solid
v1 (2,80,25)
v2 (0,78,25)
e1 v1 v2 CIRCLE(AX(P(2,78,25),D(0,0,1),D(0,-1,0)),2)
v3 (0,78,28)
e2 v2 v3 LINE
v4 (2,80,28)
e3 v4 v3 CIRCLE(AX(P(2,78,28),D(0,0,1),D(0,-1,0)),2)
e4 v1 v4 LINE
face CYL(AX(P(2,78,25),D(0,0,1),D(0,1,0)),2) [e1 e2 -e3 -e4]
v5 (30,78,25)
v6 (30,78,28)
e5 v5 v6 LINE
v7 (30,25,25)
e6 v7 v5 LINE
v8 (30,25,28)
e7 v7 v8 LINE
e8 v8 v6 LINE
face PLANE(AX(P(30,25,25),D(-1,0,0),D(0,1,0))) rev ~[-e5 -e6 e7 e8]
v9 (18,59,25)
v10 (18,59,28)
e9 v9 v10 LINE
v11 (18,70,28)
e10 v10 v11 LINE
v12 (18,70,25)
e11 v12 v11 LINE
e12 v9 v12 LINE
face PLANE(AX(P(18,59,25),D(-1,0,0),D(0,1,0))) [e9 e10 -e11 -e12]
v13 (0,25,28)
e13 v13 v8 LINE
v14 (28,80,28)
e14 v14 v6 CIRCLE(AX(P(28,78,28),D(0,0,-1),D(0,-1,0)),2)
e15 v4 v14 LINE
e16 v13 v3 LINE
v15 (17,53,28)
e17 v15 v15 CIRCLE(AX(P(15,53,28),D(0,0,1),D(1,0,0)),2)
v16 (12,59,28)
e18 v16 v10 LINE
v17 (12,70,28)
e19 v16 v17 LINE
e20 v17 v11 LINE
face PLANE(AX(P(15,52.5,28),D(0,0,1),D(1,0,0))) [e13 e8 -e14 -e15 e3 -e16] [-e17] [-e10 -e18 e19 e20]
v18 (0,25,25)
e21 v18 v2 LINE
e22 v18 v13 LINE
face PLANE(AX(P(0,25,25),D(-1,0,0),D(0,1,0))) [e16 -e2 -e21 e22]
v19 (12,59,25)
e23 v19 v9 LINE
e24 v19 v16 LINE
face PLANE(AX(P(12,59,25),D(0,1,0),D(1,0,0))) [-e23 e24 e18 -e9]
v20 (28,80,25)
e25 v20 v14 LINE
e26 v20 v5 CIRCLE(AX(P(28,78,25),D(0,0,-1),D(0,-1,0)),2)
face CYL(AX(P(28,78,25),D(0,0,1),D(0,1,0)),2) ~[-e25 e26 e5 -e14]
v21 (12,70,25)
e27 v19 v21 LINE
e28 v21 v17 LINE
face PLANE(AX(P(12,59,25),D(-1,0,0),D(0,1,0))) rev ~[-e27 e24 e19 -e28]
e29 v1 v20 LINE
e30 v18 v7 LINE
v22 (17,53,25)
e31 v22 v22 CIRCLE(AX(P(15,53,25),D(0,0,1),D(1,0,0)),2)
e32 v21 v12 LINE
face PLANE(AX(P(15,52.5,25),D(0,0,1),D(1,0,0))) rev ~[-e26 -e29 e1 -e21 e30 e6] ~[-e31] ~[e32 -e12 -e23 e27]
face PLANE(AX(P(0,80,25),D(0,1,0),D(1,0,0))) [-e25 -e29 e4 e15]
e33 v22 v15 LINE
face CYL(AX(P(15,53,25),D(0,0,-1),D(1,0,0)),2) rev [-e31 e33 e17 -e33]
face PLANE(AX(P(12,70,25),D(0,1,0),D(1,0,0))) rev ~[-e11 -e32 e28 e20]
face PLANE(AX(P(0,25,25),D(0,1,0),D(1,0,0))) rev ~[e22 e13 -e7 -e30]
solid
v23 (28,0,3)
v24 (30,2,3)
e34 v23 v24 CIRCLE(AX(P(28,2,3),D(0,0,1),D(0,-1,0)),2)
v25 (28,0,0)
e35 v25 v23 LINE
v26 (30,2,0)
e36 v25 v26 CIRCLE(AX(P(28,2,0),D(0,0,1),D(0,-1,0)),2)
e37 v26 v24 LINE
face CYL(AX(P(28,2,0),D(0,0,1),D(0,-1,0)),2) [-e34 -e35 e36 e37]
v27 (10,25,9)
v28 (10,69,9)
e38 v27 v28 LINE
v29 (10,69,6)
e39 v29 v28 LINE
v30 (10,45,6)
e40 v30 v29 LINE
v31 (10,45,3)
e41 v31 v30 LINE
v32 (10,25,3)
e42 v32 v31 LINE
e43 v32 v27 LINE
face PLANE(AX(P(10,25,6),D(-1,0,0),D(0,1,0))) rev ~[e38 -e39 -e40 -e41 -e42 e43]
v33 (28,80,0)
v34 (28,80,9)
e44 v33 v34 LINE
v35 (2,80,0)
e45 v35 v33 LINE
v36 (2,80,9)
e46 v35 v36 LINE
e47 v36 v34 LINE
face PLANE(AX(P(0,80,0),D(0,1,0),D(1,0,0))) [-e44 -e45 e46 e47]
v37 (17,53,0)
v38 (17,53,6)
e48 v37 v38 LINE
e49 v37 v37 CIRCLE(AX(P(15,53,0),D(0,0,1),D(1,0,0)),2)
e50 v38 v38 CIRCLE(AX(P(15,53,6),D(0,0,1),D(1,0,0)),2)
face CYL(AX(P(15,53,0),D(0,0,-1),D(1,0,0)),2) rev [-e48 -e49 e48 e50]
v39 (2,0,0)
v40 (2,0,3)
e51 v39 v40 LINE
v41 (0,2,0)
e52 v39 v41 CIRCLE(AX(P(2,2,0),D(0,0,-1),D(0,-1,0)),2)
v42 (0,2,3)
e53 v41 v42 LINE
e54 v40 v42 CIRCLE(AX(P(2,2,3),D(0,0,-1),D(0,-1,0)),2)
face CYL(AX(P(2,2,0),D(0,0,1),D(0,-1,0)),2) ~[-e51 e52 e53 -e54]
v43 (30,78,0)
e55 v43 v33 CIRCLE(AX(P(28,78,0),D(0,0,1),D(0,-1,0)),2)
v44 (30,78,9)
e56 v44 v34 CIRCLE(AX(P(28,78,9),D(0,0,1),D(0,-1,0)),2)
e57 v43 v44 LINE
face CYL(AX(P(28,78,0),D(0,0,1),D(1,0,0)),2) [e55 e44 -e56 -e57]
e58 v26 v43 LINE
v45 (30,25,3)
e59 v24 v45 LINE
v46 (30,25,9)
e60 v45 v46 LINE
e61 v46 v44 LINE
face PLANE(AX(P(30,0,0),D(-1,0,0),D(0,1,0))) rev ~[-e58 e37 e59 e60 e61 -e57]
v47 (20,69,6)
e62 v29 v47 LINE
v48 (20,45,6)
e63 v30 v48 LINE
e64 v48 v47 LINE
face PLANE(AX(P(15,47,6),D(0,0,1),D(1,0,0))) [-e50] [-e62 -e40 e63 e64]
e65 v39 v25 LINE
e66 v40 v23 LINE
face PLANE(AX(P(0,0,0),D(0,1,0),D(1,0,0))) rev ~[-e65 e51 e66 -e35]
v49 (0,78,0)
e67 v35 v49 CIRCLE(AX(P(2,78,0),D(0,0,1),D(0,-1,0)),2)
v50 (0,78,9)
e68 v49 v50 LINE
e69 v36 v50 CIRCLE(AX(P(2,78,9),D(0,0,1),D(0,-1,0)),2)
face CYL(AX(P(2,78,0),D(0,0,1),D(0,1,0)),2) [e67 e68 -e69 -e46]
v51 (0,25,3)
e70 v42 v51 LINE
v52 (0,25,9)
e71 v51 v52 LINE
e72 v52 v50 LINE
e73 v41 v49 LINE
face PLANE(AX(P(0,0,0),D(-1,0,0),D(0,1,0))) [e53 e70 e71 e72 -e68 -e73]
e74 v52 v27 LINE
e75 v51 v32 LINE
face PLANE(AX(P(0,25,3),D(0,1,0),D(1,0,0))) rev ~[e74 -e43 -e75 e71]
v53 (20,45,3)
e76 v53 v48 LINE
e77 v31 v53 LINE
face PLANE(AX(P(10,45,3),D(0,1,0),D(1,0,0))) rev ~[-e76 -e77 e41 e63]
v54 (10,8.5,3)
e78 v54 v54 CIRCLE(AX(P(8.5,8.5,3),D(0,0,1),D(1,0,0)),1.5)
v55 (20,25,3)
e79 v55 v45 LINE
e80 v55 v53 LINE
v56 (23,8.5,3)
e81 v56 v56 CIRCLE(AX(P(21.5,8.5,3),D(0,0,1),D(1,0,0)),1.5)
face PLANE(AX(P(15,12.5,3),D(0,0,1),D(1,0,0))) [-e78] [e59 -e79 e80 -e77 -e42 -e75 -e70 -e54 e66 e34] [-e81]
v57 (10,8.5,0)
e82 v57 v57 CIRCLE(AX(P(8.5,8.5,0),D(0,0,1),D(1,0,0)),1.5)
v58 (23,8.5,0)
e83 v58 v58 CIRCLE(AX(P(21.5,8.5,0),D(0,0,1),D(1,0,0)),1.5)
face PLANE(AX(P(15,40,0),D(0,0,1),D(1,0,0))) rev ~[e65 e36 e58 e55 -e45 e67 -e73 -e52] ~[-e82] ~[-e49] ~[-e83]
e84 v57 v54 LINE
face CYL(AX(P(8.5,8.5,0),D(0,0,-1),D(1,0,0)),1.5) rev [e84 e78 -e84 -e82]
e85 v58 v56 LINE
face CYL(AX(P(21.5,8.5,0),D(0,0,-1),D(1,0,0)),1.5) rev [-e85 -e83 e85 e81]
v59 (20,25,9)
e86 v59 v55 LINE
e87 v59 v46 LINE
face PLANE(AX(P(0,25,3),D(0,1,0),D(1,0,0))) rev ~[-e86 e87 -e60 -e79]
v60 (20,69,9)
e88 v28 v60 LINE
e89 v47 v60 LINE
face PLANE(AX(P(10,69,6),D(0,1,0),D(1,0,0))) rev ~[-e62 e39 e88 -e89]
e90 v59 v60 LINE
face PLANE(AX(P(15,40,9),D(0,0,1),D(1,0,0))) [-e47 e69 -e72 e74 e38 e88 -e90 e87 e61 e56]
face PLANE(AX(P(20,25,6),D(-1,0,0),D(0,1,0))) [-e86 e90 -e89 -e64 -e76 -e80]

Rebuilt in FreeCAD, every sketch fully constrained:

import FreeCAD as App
import Part
import Sketcher


def edges_at(feature, points):
    """Names of the edges that pass closest to the given points."""
    edges = feature.Shape.Edges
    near = lambda p: min(range(len(edges)), key=lambda i: edges[i].distToShape(Part.Vertex(*p))[0])
    return sorted({f"Edge{near(p) + 1}" for p in points})

doc = App.newDocument("Part")
body = doc.addObject("PartDesign::Body", "Body")

# Sketch on XY plane
sketch1 = body.newObject("Sketcher::SketchObject", "Sketch")
sketch1.AttachmentSupport = (doc.getObject("XY_Plane"), [""])
sketch1.MapMode = "FlatFace"
sketch1.addGeometry(Part.Circle(App.Vector(8.5, 8.5, 0), App.Vector(0, 0, 1), 1.5), False)
sketch1.addConstraint([
    Sketcher.Constraint("Diameter", 0, 3.0),
    Sketcher.Constraint("DistanceX", -1, 1, 0, 3, 8.5),
    Sketcher.Constraint("DistanceY", -1, 1, 0, 3, 8.5),
])
pad1 = body.newObject("PartDesign::Pad", "Pad")
pad1.Profile = sketch1
pad1.Length = 3
body2 = doc.addObject("PartDesign::Body", "Body001")
body2.AllowCompound = True

# Sketch on XY plane
sketch2 = body2.newObject("Sketcher::SketchObject", "Sketch001")
sketch2.AttachmentSupport = (doc.getObject("XY_Plane001"), [""])
sketch2.MapMode = "FlatFace"
sketch2.addGeometry(Part.Circle(App.Vector(21.5, 8.5, 0), App.Vector(0, 0, 1), 1.5), False)
sketch2.addConstraint([
    Sketcher.Constraint("Diameter", 0, 3.0),
    Sketcher.Constraint("DistanceX", -1, 1, 0, 3, 21.5),
    Sketcher.Constraint("DistanceY", -1, 1, 0, 3, 8.5),
])
pad2 = body2.newObject("PartDesign::Pad", "Pad001")
pad2.Profile = sketch2
pad2.Length = 3
doc.recompute()

boolean = body2.newObject("PartDesign::Boolean", "Boolean")
boolean.Type = "Fuse"
boolean.addObjects([body])
body3 = doc.addObject("PartDesign::Body", "Body002")

# Sketch on XY plane
sketch3 = body3.newObject("Sketcher::SketchObject", "Sketch002")
sketch3.AttachmentSupport = (doc.getObject("XY_Plane002"), [""])
sketch3.MapMode = "FlatFace"
sketch3.addGeometry(Part.Circle(App.Vector(15, 53, 0), App.Vector(0, 0, 1), 2), False)
sketch3.addConstraint([
    Sketcher.Constraint("Diameter", 0, 4.0),
    Sketcher.Constraint("DistanceX", -1, 1, 0, 3, 15.0),
    Sketcher.Constraint("DistanceY", -1, 1, 0, 3, 53.0),
])
pad3 = body3.newObject("PartDesign::Pad", "Pad002")
pad3.Profile = sketch3
pad3.Length = 6
body4 = doc.addObject("PartDesign::Body", "Body003")

# Sketch on XY plane
sketch4 = body4.newObject("Sketcher::SketchObject", "Sketch003")
sketch4.AttachmentSupport = (doc.getObject("XY_Plane003"), [""])
sketch4.MapMode = "FlatFace"
sketch4.AttachmentOffset = App.Placement(App.Vector(0, 0, 3), App.Rotation())
sketch4.addGeometry([
    Part.LineSegment(App.Vector(0, 25, 0), App.Vector(0, 0, 0)),
    Part.LineSegment(App.Vector(0, 0, 0), App.Vector(30, 0, 0)),
    Part.LineSegment(App.Vector(30, 0, 0), App.Vector(30, 25, 0)),
    Part.LineSegment(App.Vector(30, 25, 0), App.Vector(0, 25, 0)),
], False)
sketch4.addConstraint([
    Sketcher.Constraint("Coincident", 0, 2, 1, 1),
    Sketcher.Constraint("Coincident", 1, 2, 2, 1),
    Sketcher.Constraint("Coincident", 2, 2, 3, 1),
    Sketcher.Constraint("Coincident", 3, 2, 0, 1),
    Sketcher.Constraint("Vertical", 0),
    Sketcher.Constraint("Horizontal", 1),
    Sketcher.Constraint("Vertical", 2),
    Sketcher.Constraint("Horizontal", 3),
    Sketcher.Constraint("Coincident", 0, 2, -1, 1),
    Sketcher.Constraint("DistanceX", 1, 1, 1, 2, 30.0),
    Sketcher.Constraint("DistanceY", 0, 2, 0, 1, 25.0),
])
pad4 = body4.newObject("PartDesign::Pad", "Pad003")
pad4.Profile = sketch4
pad4.Length = 6
body5 = doc.addObject("PartDesign::Body", "Body004")

# Sketch on XY plane
sketch5 = body5.newObject("Sketcher::SketchObject", "Sketch004")
sketch5.AttachmentSupport = (doc.getObject("XY_Plane004"), [""])
sketch5.MapMode = "FlatFace"
sketch5.AttachmentOffset = App.Placement(App.Vector(0, 0, 3), App.Rotation())
sketch5.addGeometry([
    Part.LineSegment(App.Vector(10, 45, 0), App.Vector(10, 25, 0)),
    Part.LineSegment(App.Vector(10, 25, 0), App.Vector(20, 25, 0)),
    Part.LineSegment(App.Vector(20, 25, 0), App.Vector(20, 45, 0)),
    Part.LineSegment(App.Vector(20, 45, 0), App.Vector(10, 45, 0)),
], False)
sketch5.addConstraint([
    Sketcher.Constraint("Coincident", 0, 2, 1, 1),
    Sketcher.Constraint("Coincident", 1, 2, 2, 1),
    Sketcher.Constraint("Coincident", 2, 2, 3, 1),
    Sketcher.Constraint("Coincident", 3, 2, 0, 1),
    Sketcher.Constraint("Vertical", 0),
    Sketcher.Constraint("Horizontal", 1),
    Sketcher.Constraint("Vertical", 2),
    Sketcher.Constraint("Horizontal", 3),
    Sketcher.Constraint("DistanceX", 1, 1, 1, 2, 10.0),
    Sketcher.Constraint("DistanceY", 0, 2, 0, 1, 20.0),
    Sketcher.Constraint("DistanceX", -1, 1, 0, 2, 10.0),
    Sketcher.Constraint("DistanceY", -1, 1, 0, 2, 25.0),
])
pad5 = body5.newObject("PartDesign::Pad", "Pad004")
pad5.Profile = sketch5
pad5.Length = 3
body6 = doc.addObject("PartDesign::Body", "Body005")

# Sketch on XY plane
sketch6 = body6.newObject("Sketcher::SketchObject", "Sketch005")
sketch6.AttachmentSupport = (doc.getObject("XY_Plane005"), [""])
sketch6.MapMode = "FlatFace"
sketch6.AttachmentOffset = App.Placement(App.Vector(0, 0, 6), App.Rotation())
sketch6.addGeometry([
    Part.LineSegment(App.Vector(10, 69, 0), App.Vector(10, 25, 0)),
    Part.LineSegment(App.Vector(10, 25, 0), App.Vector(20, 25, 0)),
    Part.LineSegment(App.Vector(20, 25, 0), App.Vector(20, 69, 0)),
    Part.LineSegment(App.Vector(20, 69, 0), App.Vector(10, 69, 0)),
], False)
sketch6.addConstraint([
    Sketcher.Constraint("Coincident", 0, 2, 1, 1),
    Sketcher.Constraint("Coincident", 1, 2, 2, 1),
    Sketcher.Constraint("Coincident", 2, 2, 3, 1),
    Sketcher.Constraint("Coincident", 3, 2, 0, 1),
    Sketcher.Constraint("Vertical", 0),
    Sketcher.Constraint("Horizontal", 1),
    Sketcher.Constraint("Vertical", 2),
    Sketcher.Constraint("Horizontal", 3),
    Sketcher.Constraint("DistanceX", 1, 1, 1, 2, 10.0),
    Sketcher.Constraint("DistanceY", 0, 2, 0, 1, 44.0),
    Sketcher.Constraint("DistanceX", -1, 1, 0, 2, 10.0),
    Sketcher.Constraint("DistanceY", -1, 1, 0, 2, 25.0),
])
pad6 = body6.newObject("PartDesign::Pad", "Pad005")
pad6.Profile = sketch6
pad6.Length = 3
body7 = doc.addObject("PartDesign::Body", "Body006")

# Sketch on XY plane
sketch7 = body7.newObject("Sketcher::SketchObject", "Sketch006")
sketch7.AttachmentSupport = (doc.getObject("XY_Plane006"), [""])
sketch7.MapMode = "FlatFace"
sketch7.addGeometry([
    Part.LineSegment(App.Vector(0, 80, 0), App.Vector(0, 0, 0)),
    Part.LineSegment(App.Vector(0, 0, 0), App.Vector(30, 0, 0)),
    Part.LineSegment(App.Vector(30, 0, 0), App.Vector(30, 80, 0)),
    Part.LineSegment(App.Vector(30, 80, 0), App.Vector(0, 80, 0)),
], False)
sketch7.addConstraint([
    Sketcher.Constraint("Coincident", 0, 2, 1, 1),
    Sketcher.Constraint("Coincident", 1, 2, 2, 1),
    Sketcher.Constraint("Coincident", 2, 2, 3, 1),
    Sketcher.Constraint("Coincident", 3, 2, 0, 1),
    Sketcher.Constraint("Vertical", 0),
    Sketcher.Constraint("Horizontal", 1),
    Sketcher.Constraint("Vertical", 2),
    Sketcher.Constraint("Horizontal", 3),
    Sketcher.Constraint("Coincident", 0, 2, -1, 1),
    Sketcher.Constraint("DistanceX", 1, 1, 1, 2, 30.0),
    Sketcher.Constraint("DistanceY", 0, 2, 0, 1, 80.0),
])
pad7 = body7.newObject("PartDesign::Pad", "Pad006")
pad7.Profile = sketch7
pad7.Length = 9
doc.recompute()

boolean2 = body7.newObject("PartDesign::Boolean", "Boolean001")
boolean2.Type = "Cut"
boolean2.addObjects([body6])
doc.recompute()

boolean3 = body7.newObject("PartDesign::Boolean", "Boolean002")
boolean3.Type = "Cut"
boolean3.addObjects([body5])
doc.recompute()

boolean4 = body7.newObject("PartDesign::Boolean", "Boolean003")
boolean4.Type = "Cut"
boolean4.addObjects([body4])
doc.recompute()

boolean5 = body7.newObject("PartDesign::Boolean", "Boolean004")
boolean5.Type = "Cut"
boolean5.addObjects([body3])
doc.recompute()

boolean6 = body7.newObject("PartDesign::Boolean", "Boolean005")
boolean6.Type = "Cut"
boolean6.addObjects([body2])
doc.recompute()

fillet = body7.newObject("PartDesign::Fillet", "Fillet")
fillet.Base = (boolean6, edges_at(boolean6, [(30, 0, 1.5)]))
fillet.Radius = 2
doc.recompute()

fillet2 = body7.newObject("PartDesign::Fillet", "Fillet001")
fillet2.Base = (fillet, edges_at(fillet, [(0, 0, 1.5)]))
fillet2.Radius = 2
doc.recompute()

fillet3 = body7.newObject("PartDesign::Fillet", "Fillet002")
fillet3.Base = (fillet2, edges_at(fillet2, [(30, 80, 4.5)]))
fillet3.Radius = 2
doc.recompute()

fillet4 = body7.newObject("PartDesign::Fillet", "Fillet003")
fillet4.Base = (fillet3, edges_at(fillet3, [(0, 80, 4.5)]))
fillet4.Radius = 2
body8 = doc.addObject("PartDesign::Body", "Body007")

# Sketch on XY plane
sketch8 = body8.newObject("Sketcher::SketchObject", "Sketch007")
sketch8.AttachmentSupport = (doc.getObject("XY_Plane007"), [""])
sketch8.MapMode = "FlatFace"
sketch8.AttachmentOffset = App.Placement(App.Vector(0, 0, 25), App.Rotation())
sketch8.addGeometry(Part.Circle(App.Vector(15, 53, 0), App.Vector(0, 0, 1), 2), False)
sketch8.addConstraint([
    Sketcher.Constraint("Diameter", 0, 4.0),
    Sketcher.Constraint("DistanceX", -1, 1, 0, 3, 15.0),
    Sketcher.Constraint("DistanceY", -1, 1, 0, 3, 53.0),
])
pad8 = body8.newObject("PartDesign::Pad", "Pad007")
pad8.Profile = sketch8
pad8.Length = 3
body9 = doc.addObject("PartDesign::Body", "Body008")

# Sketch on XY plane
sketch9 = body9.newObject("Sketcher::SketchObject", "Sketch008")
sketch9.AttachmentSupport = (doc.getObject("XY_Plane008"), [""])
sketch9.MapMode = "FlatFace"
sketch9.AttachmentOffset = App.Placement(App.Vector(0, 0, 25), App.Rotation())
sketch9.addGeometry([
    Part.LineSegment(App.Vector(12, 70, 0), App.Vector(12, 59, 0)),
    Part.LineSegment(App.Vector(12, 59, 0), App.Vector(18, 59, 0)),
    Part.LineSegment(App.Vector(18, 59, 0), App.Vector(18, 70, 0)),
    Part.LineSegment(App.Vector(18, 70, 0), App.Vector(12, 70, 0)),
], False)
sketch9.addConstraint([
    Sketcher.Constraint("Coincident", 0, 2, 1, 1),
    Sketcher.Constraint("Coincident", 1, 2, 2, 1),
    Sketcher.Constraint("Coincident", 2, 2, 3, 1),
    Sketcher.Constraint("Coincident", 3, 2, 0, 1),
    Sketcher.Constraint("Vertical", 0),
    Sketcher.Constraint("Horizontal", 1),
    Sketcher.Constraint("Vertical", 2),
    Sketcher.Constraint("Horizontal", 3),
    Sketcher.Constraint("DistanceX", 1, 1, 1, 2, 6.0),
    Sketcher.Constraint("DistanceY", 0, 2, 0, 1, 11.0),
    Sketcher.Constraint("DistanceX", -1, 1, 0, 2, 12.0),
    Sketcher.Constraint("DistanceY", -1, 1, 0, 2, 59.0),
])
pad9 = body9.newObject("PartDesign::Pad", "Pad008")
pad9.Profile = sketch9
pad9.Length = 3
body10 = doc.addObject("PartDesign::Body", "Body009")

# Sketch on XY plane
sketch10 = body10.newObject("Sketcher::SketchObject", "Sketch009")
sketch10.AttachmentSupport = (doc.getObject("XY_Plane009"), [""])
sketch10.MapMode = "FlatFace"
sketch10.AttachmentOffset = App.Placement(App.Vector(0, 0, 25), App.Rotation())
sketch10.addGeometry([
    Part.LineSegment(App.Vector(0, 80, 0), App.Vector(0, 25, 0)),
    Part.LineSegment(App.Vector(0, 25, 0), App.Vector(30, 25, 0)),
    Part.LineSegment(App.Vector(30, 25, 0), App.Vector(30, 80, 0)),
    Part.LineSegment(App.Vector(30, 80, 0), App.Vector(0, 80, 0)),
], False)
sketch10.addConstraint([
    Sketcher.Constraint("Coincident", 0, 2, 1, 1),
    Sketcher.Constraint("Coincident", 1, 2, 2, 1),
    Sketcher.Constraint("Coincident", 2, 2, 3, 1),
    Sketcher.Constraint("Coincident", 3, 2, 0, 1),
    Sketcher.Constraint("Vertical", 0),
    Sketcher.Constraint("Horizontal", 1),
    Sketcher.Constraint("Vertical", 2),
    Sketcher.Constraint("Horizontal", 3),
    Sketcher.Constraint("PointOnObject", 0, 2, -2),
    Sketcher.Constraint("DistanceX", 1, 1, 1, 2, 30.0),
    Sketcher.Constraint("DistanceY", 0, 2, 0, 1, 55.0),
    Sketcher.Constraint("DistanceY", -1, 1, 0, 2, 25.0),
])
pad10 = body10.newObject("PartDesign::Pad", "Pad009")
pad10.Profile = sketch10
pad10.Length = 3
doc.recompute()

boolean7 = body10.newObject("PartDesign::Boolean", "Boolean006")
boolean7.Type = "Cut"
boolean7.addObjects([body9])
doc.recompute()

boolean8 = body10.newObject("PartDesign::Boolean", "Boolean007")
boolean8.Type = "Cut"
boolean8.addObjects([body8])
doc.recompute()

fillet5 = body10.newObject("PartDesign::Fillet", "Fillet004")
fillet5.Base = (boolean8, edges_at(boolean8, [(30, 80, 26.5)]))
fillet5.Radius = 2
doc.recompute()

fillet6 = body10.newObject("PartDesign::Fillet", "Fillet005")
fillet6.Base = (fillet5, edges_at(fillet5, [(0, 80, 26.5)]))
fillet6.Radius = 2

doc.recompute()
